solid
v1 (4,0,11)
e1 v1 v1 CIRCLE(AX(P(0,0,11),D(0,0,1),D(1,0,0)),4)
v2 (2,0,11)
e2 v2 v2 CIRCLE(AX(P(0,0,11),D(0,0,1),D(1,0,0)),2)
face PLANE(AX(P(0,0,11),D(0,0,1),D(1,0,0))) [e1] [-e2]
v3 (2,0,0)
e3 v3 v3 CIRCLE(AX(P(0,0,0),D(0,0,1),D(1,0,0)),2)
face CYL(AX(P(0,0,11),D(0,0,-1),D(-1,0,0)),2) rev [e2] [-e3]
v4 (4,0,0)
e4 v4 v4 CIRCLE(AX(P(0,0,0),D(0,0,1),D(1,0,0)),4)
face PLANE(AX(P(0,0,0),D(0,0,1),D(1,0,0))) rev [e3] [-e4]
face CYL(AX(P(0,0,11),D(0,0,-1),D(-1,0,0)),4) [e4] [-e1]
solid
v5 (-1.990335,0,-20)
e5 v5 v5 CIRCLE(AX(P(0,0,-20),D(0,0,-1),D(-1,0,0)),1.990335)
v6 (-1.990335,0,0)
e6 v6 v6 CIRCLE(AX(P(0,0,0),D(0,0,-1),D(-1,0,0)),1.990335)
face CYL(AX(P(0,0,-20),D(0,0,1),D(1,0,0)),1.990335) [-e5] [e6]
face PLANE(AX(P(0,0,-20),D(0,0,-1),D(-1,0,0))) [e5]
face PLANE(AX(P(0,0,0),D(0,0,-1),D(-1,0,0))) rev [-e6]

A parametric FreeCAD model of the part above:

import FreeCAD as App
import Part
import Sketcher
from FreeCAD import Vector

doc = App.newDocument("Part")
params = doc.addObject("Spreadsheet::Sheet", "Params")
for row, (alias, value) in enumerate([
    ("sketch1_diameter", "8 mm"),
    ("sketch1_diameter2", "4 mm"),
    ("pad1_length", "11 mm"),
    ("pad2_length", "20 mm"),
], start=1):
    params.set(f"A{row}", alias)
    params.set(f"B{row}", "=" + value)
    params.setAlias(f"B{row}", alias)

body = doc.addObject("PartDesign::Body", "Body")

# Sketch on XY plane
sketch1 = doc.addObject("Sketcher::SketchObject", "Sketch")
body.addObject(sketch1)
sketch1.AttachmentSupport = (doc.XY_Plane, [""])
sketch1.MapMode = "FlatFace"
sketch1.addGeometry([
    Part.Circle(Vector(0, 0, 0), Vector(0, 0, 1), 4),
    Part.Circle(Vector(0, 0, 0), Vector(0, 0, 1), 2),
], False)
sketch1.addConstraint([
    Sketcher.Constraint("Coincident", 0, 3, -1, 1),
    Sketcher.Constraint("Coincident", 1, 3, -1, 1),
    Sketcher.Constraint("Diameter", 0, 8.0),
    Sketcher.Constraint("Diameter", 1, 4.0),
])
sketch1.setExpression("Constraints[2]", "Params.sketch1_diameter")
sketch1.setExpression("Constraints[3]", "Params.sketch1_diameter2")
pad1 = doc.addObject("PartDesign::Pad", "Pad")
body.addObject(pad1)
pad1.Profile = sketch1
pad1.setExpression("Length", "Params.pad1_length")
body2 = doc.addObject("PartDesign::Body", "Body001")

# Sketch on XY plane
sketch2 = doc.addObject("Sketcher::SketchObject", "Sketch001")
body2.addObject(sketch2)
sketch2.AttachmentSupport = (doc.getObject("XY_Plane001"), [""])
sketch2.MapMode = "FlatFace"
sketch2.addGeometry(Part.Circle(Vector(0, 0, 0), Vector(0, 0, 1), 2), False)
sketch2.addConstraint([
    Sketcher.Constraint("Coincident", 0, 3, -1, 1),
    Sketcher.Constraint("Diameter", 0, 3.980669),
])
pad2 = doc.addObject("PartDesign::Pad", "Pad001")
body2.addObject(pad2)
pad2.Profile = sketch2
pad2.setExpression("Length", "Params.pad2_length")
pad2.Reversed = True

doc.recompute()
